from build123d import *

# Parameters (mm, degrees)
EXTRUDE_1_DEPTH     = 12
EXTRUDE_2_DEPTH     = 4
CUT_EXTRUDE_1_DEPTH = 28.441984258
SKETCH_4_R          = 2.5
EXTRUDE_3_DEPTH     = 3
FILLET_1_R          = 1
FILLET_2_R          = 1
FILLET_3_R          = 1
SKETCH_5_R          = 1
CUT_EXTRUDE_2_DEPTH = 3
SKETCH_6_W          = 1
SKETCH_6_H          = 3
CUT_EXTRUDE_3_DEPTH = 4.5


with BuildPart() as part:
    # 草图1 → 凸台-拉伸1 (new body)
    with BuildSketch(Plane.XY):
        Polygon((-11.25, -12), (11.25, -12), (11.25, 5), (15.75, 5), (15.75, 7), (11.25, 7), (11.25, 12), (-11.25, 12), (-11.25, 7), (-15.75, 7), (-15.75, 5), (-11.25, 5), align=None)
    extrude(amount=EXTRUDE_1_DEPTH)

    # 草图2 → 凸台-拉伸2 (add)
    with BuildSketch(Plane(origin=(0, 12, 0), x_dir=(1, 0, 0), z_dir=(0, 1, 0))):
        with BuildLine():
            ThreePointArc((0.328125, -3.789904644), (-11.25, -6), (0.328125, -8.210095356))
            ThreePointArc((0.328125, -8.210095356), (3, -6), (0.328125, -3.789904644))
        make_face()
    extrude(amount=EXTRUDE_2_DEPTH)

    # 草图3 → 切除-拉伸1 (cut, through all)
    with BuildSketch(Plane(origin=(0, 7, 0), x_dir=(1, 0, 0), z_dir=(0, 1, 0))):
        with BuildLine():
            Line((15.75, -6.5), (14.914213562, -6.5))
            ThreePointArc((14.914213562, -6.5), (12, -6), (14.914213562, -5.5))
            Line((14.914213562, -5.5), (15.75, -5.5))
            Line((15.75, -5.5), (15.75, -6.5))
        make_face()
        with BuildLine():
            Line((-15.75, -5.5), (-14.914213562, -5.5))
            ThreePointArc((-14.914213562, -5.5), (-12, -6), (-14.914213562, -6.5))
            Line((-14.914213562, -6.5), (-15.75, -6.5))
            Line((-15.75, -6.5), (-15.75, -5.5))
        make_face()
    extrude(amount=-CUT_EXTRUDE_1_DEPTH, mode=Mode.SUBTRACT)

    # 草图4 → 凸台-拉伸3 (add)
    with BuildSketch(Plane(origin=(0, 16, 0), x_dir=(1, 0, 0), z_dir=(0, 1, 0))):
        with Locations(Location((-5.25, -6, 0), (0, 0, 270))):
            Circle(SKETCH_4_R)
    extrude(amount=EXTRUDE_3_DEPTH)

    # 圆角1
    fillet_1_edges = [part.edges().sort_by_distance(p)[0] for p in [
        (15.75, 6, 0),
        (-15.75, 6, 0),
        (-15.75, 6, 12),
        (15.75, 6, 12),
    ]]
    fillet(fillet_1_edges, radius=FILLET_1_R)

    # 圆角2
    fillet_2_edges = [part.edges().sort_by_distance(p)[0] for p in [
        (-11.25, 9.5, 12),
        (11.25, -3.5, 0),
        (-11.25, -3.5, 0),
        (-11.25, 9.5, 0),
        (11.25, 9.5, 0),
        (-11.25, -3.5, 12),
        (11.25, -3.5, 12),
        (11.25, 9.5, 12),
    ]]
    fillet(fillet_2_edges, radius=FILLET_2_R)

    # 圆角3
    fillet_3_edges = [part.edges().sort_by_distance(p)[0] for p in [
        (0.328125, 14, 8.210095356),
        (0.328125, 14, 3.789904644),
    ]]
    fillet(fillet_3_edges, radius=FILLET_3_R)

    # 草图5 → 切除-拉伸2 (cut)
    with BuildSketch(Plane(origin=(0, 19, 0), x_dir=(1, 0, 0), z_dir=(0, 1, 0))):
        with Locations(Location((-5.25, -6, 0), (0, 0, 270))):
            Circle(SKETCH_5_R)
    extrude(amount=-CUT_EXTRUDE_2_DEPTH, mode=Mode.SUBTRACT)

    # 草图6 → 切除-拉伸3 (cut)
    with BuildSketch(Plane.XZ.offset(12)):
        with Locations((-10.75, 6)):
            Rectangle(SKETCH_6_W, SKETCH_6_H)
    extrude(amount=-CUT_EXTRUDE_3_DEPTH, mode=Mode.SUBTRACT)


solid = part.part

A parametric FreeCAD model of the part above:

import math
import FreeCAD as App
import Part
import Sketcher

V = App.Vector
Q = App.Units.Quantity


def edges_at(feature, points):
    """Names of the edges that pass closest to the given points."""
    edges = feature.Shape.Edges
    near = lambda p: min(range(len(edges)), key=lambda i: edges[i].distToShape(Part.Vertex(*p))[0])
    return sorted({f"Edge{near(p) + 1}" for p in points})

doc = App.newDocument("Part")
body = doc.addObject("PartDesign::Body", "Body")

# Sketch on XY plane
sketch1 = body.newObject("Sketcher::SketchObject", "Sketch")
sketch1.AttachmentSupport = (doc.getObject("XY_Plane"), [""])
sketch1.MapMode = "FlatFace"
sketch1.addGeometry([
    Part.LineSegment(V(-11.25, -12, 0), V(11.25, -12, 0)),  # 0
    Part.LineSegment(V(11.25, -12, 0), V(11.25, 5, 0)),  # 1
    Part.LineSegment(V(11.25, 5, 0), V(15.75, 5, 0)),  # 2
    Part.LineSegment(V(15.75, 5, 0), V(15.75, 7, 0)),  # 3
    Part.LineSegment(V(15.75, 7, 0), V(11.25, 7, 0)),  # 4
    Part.LineSegment(V(11.25, 7, 0), V(11.25, 12, 0)),  # 5
    Part.LineSegment(V(11.25, 12, 0), V(-11.25, 12, 0)),  # 6
    Part.LineSegment(V(-11.25, 12, 0), V(-11.25, 7, 0)),  # 7
    Part.LineSegment(V(-11.25, 7, 0), V(-15.75, 7, 0)),  # 8
    Part.LineSegment(V(-15.75, 7, 0), V(-15.75, 5, 0)),  # 9
    Part.LineSegment(V(-15.75, 5, 0), V(-11.25, 5, 0)),  # 10
    Part.LineSegment(V(-11.25, 5, 0), V(-11.25, -12, 0)),  # 11
], False)
sketch1.addConstraint([
    Sketcher.Constraint("Coincident", 0, 2, 1, 1),
    Sketcher.Constraint("Coincident", 1, 2, 2, 1),
    Sketcher.Constraint("Coincident", 2, 2, 3, 1),
    Sketcher.Constraint("Coincident", 3, 2, 4, 1),
    Sketcher.Constraint("Coincident", 4, 2, 5, 1),
    Sketcher.Constraint("Coincident", 5, 2, 6, 1),
    Sketcher.Constraint("Coincident", 6, 2, 7, 1),
    Sketcher.Constraint("Coincident", 7, 2, 8, 1),
    Sketcher.Constraint("Coincident", 8, 2, 9, 1),
    Sketcher.Constraint("Coincident", 9, 2, 10, 1),
    Sketcher.Constraint("Coincident", 10, 2, 11, 1),
    Sketcher.Constraint("Coincident", 11, 2, 0, 1),
    Sketcher.Constraint("Horizontal", 0),
    Sketcher.Constraint("Vertical", 1),
    Sketcher.Constraint("Horizontal", 2),
    Sketcher.Constraint("Vertical", 3),
    Sketcher.Constraint("Horizontal", 4),
    Sketcher.Constraint("Vertical", 5),
    Sketcher.Constraint("Horizontal", 6),
    Sketcher.Constraint("Vertical", 7),
    Sketcher.Constraint("Horizontal", 8),
    Sketcher.Constraint("Vertical", 9),
    Sketcher.Constraint("Horizontal", 10),
    Sketcher.Constraint("Vertical", 11),
    Sketcher.Constraint("Symmetric", 0, 2, 6, 2, -1, 1),
    Sketcher.Constraint("Symmetric", 4, 2, 7, 2, -2),
    Sketcher.Constraint("Symmetric", 2, 2, 9, 2, -2),
    Sketcher.Constraint("Vertical", 7, 2, 10, 2),
    Sketcher.Constraint("DistanceY", 1, 1, 1, 2, Q("17 mm")),
    Sketcher.Constraint("DistanceY", 3, 1, 3, 2, Q("2 mm")),
    Sketcher.Constraint("DistanceY", 5, 1, 5, 2, Q("5 mm")),
    Sketcher.Constraint("DistanceX", 0, 1, 0, 2, Q("22.5 mm")),
    Sketcher.Constraint("DistanceX", 2, 1, 2, 2, Q("4.5 mm")),
])
pad1 = body.newObject("PartDesign::Pad", "Pad")
pad1.Profile = sketch1
pad1.Length = 12

# Sketch on XZ plane
sketch2 = body.newObject("Sketcher::SketchObject", "Sketch001")
sketch2.AttachmentSupport = (doc.getObject("XZ_Plane"), [""])
sketch2.MapMode = "FlatFace"
sketch2.AttachmentOffset = App.Placement(V(0, 0, -12), App.Rotation())
sketch2.addGeometry([
    Part.ArcOfCircle(Part.Circle(V(-5.25, 6, 0), V(0, 0, 1), 6), math.radians(21.613846), math.radians(338.386154)),
    Part.ArcOfCircle(Part.Circle(V(0.75, 6, 0), V(0, 0, 1), 2.25), math.radians(-100.806923), math.radians(100.806923)),
], False)
sketch2.addConstraint([
    Sketcher.Constraint("Coincident", 0, 1, 1, 2),
    Sketcher.Constraint("Coincident", 1, 1, 0, 2),
    Sketcher.Constraint("Horizontal", 0, 3, 1, 3),
    Sketcher.Constraint("Radius", 0, Q("6 mm")),
    Sketcher.Constraint("Radius", 1, Q("2.25 mm")),
    Sketcher.Constraint("DistanceY", -1, 1, 0, 3, Q("6 mm")),
    Sketcher.Constraint("DistanceX", 0, 3, 1, 3, Q("6 mm")),
    Sketcher.Constraint("DistanceX", 0, 3, -1, 1, Q("5.25 mm")),
])
pad2 = body.newObject("PartDesign::Pad", "Pad001")
pad2.Profile = sketch2
pad2.Length = 4
pad2.Reversed = True

# Sketch on XZ plane
sketch3 = body.newObject("Sketcher::SketchObject", "Sketch002")
sketch3.AttachmentSupport = (doc.getObject("XZ_Plane"), [""])
sketch3.MapMode = "FlatFace"
sketch3.AttachmentOffset = App.Placement(V(0, 0, -7), App.Rotation())
sketch3.addGeometry([
    Part.LineSegment(V(14.914214, 6.5, 0), V(15.75, 6.5, 0)),  # 0
    Part.LineSegment(V(15.75, 6.5, 0), V(15.75, 5.5, 0)),  # 1
    Part.LineSegment(V(15.75, 5.5, 0), V(14.914214, 5.5, 0)),  # 2
    Part.ArcOfCircle(Part.Circle(V(13.5, 6, 0), V(0, 0, 1), 1.5), math.radians(19.471221), math.radians(340.528779)),  # 3
    Part.LineSegment(V(-14.914214, 5.5, 0), V(-15.75, 5.5, 0)),  # 4
    Part.LineSegment(V(-15.75, 5.5, 0), V(-15.75, 6.5, 0)),  # 5
    Part.LineSegment(V(-15.75, 6.5, 0), V(-14.914214, 6.5, 0)),  # 6
    Part.ArcOfCircle(Part.Circle(V(-13.5, 6, 0), V(0, 0, 1), 1.5), math.radians(-160.528779), math.radians(160.528779)),  # 7
], False)
sketch3.addConstraint([
    Sketcher.Constraint("Coincident", 0, 2, 1, 1),
    Sketcher.Constraint("Coincident", 1, 2, 2, 1),
    Sketcher.Constraint("Coincident", 2, 2, 3, 2),
    Sketcher.Constraint("Coincident", 3, 1, 0, 1),
    Sketcher.Constraint("Coincident", 4, 2, 5, 1),
    Sketcher.Constraint("Coincident", 5, 2, 6, 1),
    Sketcher.Constraint("Coincident", 6, 2, 7, 2),
    Sketcher.Constraint("Coincident", 7, 1, 4, 1),
    Sketcher.Constraint("Horizontal", 0),
    Sketcher.Constraint("Vertical", 1),
    Sketcher.Constraint("Horizontal", 2),
    Sketcher.Constraint("Horizontal", 4),
    Sketcher.Constraint("Vertical", 5),
    Sketcher.Constraint("Horizontal", 6),
    Sketcher.Constraint("Equal", 3, 7),
    Sketcher.Constraint("Symmetric", 3, 3, 7, 3, -2),
    Sketcher.Constraint("Symmetric", 1, 2, 4, 2, -2),
    Sketcher.Constraint("Horizontal", 3, 1, 5, 2),
    Sketcher.Constraint("Vertical", 2, 2, 3, 1),
    Sketcher.Constraint("Radius", 3, Q("1.5 mm")),
    Sketcher.Constraint("DistanceY", 1, 2, 1, 1, Q("1 mm")),
    Sketcher.Constraint("DistanceY", -1, 1, 3, 3, Q("6 mm")),
    Sketcher.Constraint("DistanceX", 7, 3, 3, 3, Q("27 mm")),
    Sketcher.Constraint("DistanceX", 4, 2, 1, 2, Q("31.5 mm")),
])
pocket1 = body.newObject("PartDesign::Pocket", "Pocket")
pocket1.Profile = sketch3
pocket1.Type = "ThroughAll"
pocket1.Reversed = True

# Sketch on XZ plane
sketch4 = body.newObject("Sketcher::SketchObject", "Sketch003")
sketch4.AttachmentSupport = (doc.getObject("XZ_Plane"), [""])
sketch4.MapMode = "FlatFace"
sketch4.AttachmentOffset = App.Placement(V(0, 0, -16), App.Rotation())
sketch4.addGeometry(Part.Circle(V(-5.25, 6, 0), V(0, 0, 1), 2.5), False)
sketch4.addConstraint([
    Sketcher.Constraint("Diameter", 0, Q("5 mm")),
    Sketcher.Constraint("DistanceY", -1, 1, 0, 3, Q("6 mm")),
    Sketcher.Constraint("DistanceX", 0, 3, -1, 1, Q("5.25 mm")),
])
pad3 = body.newObject("PartDesign::Pad", "Pad002")
pad3.Profile = sketch4
pad3.Length = 3
pad3.Reversed = True
doc.recompute()

fillet = body.newObject("PartDesign::Fillet", "Fillet")
fillet.Base = (pad3, edges_at(pad3, [
    (15.75, 6, 0),
    (-15.75, 6, 0),
    (-15.75, 6, 12),
    (15.75, 6, 12),
]))
fillet.Radius = 1
doc.recompute()

fillet2 = body.newObject("PartDesign::Fillet", "Fillet001")
fillet2.Base = (fillet, edges_at(fillet, [
    (-11.25, 9.5, 12),
    (11.25, -3.5, 0),
    (-11.25, -3.5, 0),
    (-11.25, 9.5, 0),
    (11.25, 9.5, 0),
    (-11.25, -3.5, 12),
    (11.25, -3.5, 12),
    (11.25, 9.5, 12),
]))
fillet2.Radius = 1
doc.recompute()

fillet3 = body.newObject("PartDesign::Fillet", "Fillet002")
fillet3.Base = (fillet2, edges_at(fillet2, [(0.328, 14, 8.21), (0.328, 14, 3.79)]))
fillet3.Radius = 1

# Sketch on XZ plane
sketch5 = body.newObject("Sketcher::SketchObject", "Sketch004")
sketch5.AttachmentSupport = (doc.getObject("XZ_Plane"), [""])
sketch5.MapMode = "FlatFace"
sketch5.AttachmentOffset = App.Placement(V(0, 0, -19), App.Rotation())
sketch5.addGeometry(Part.Circle(V(-5.25, 6, 0), V(0, 0, 1), 1), False)
sketch5.addConstraint([
    Sketcher.Constraint("Diameter", 0, Q("2 mm")),
    Sketcher.Constraint("DistanceY", -1, 1, 0, 3, Q("6 mm")),
    Sketcher.Constraint("DistanceX", 0, 3, -1, 1, Q("5.25 mm")),
])
pocket2 = body.newObject("PartDesign::Pocket", "Pocket001")
pocket2.Profile = sketch5
pocket2.Length = 3
pocket2.Reversed = True

# Sketch on XZ plane
sketch6 = body.newObject("Sketcher::SketchObject", "Sketch005")
sketch6.AttachmentSupport = (doc.getObject("XZ_Plane"), [""])
sketch6.MapMode = "FlatFace"
sketch6.AttachmentOffset = App.Placement(V(0, 0, 12), App.Rotation())
sketch6.addGeometry([
    Part.LineSegment(V(-11.25, 7.5, 0), V(-11.25, 4.5, 0)),
    Part.LineSegment(V(-11.25, 4.5, 0), V(-10.25, 4.5, 0)),
    Part.LineSegment(V(-10.25, 4.5, 0), V(-10.25, 7.5, 0)),
    Part.LineSegment(V(-10.25, 7.5, 0), V(-11.25, 7.5, 0)),
], False)
sketch6.addConstraint([
    Sketcher.Constraint("Coincident", 0, 2, 1, 1),
    Sketcher.Constraint("Coincident", 1, 2, 2, 1),
    Sketcher.Constraint("Coincident", 2, 2, 3, 1),
    Sketcher.Constraint("Coincident", 3, 2, 0, 1),
    Sketcher.Constraint("Vertical", 0),
    Sketcher.Constraint("Horizontal", 1),
    Sketcher.Constraint("Vertical", 2),
    Sketcher.Constraint("Horizontal", 3),
    Sketcher.Constraint("DistanceX", 1, 1, 1, 2, Q("1 mm")),
    Sketcher.Constraint("DistanceY", 0, 2, 0, 1, Q("3 mm")),
    Sketcher.Constraint("DistanceY", -1, 1, 0, 2, Q("4.5 mm")),
    Sketcher.Constraint("DistanceX", 0, 2, -1, 1, Q("11.25 mm")),
])
pocket3 = body.newObject("PartDesign::Pocket", "Pocket002")
pocket3.Profile = sketch6
pocket3.Length = 4.5

doc.recompute()
